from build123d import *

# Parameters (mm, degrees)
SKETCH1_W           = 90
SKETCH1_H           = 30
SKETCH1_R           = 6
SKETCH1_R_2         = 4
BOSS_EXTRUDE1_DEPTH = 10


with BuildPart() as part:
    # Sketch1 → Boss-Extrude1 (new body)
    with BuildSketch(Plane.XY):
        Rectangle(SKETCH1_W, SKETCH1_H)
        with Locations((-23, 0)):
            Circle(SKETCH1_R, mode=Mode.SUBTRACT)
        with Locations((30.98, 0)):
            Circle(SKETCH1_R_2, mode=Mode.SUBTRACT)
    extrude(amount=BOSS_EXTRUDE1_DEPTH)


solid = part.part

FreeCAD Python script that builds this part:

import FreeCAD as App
import Part
import Sketcher

V = App.Vector

doc = App.newDocument("Part")
body = doc.addObject("PartDesign::Body", "Body")

# Sketch on XY plane
sketch1 = doc.addObject("Sketcher::SketchObject", "Sketch")
body.addObject(sketch1)
sketch1.AttachmentSupport = (doc.XY_Plane, [""])
sketch1.MapMode = "FlatFace"
sketch1.addGeometry([
    Part.LineSegment(V(-45, 15, 0), V(-45, -15, 0)),  # 0
    Part.LineSegment(V(-45, -15, 0), V(45, -15, 0)),  # 1
    Part.LineSegment(V(45, -15, 0), V(45, 15, 0)),  # 2
    Part.LineSegment(V(45, 15, 0), V(-45, 15, 0)),  # 3
    Part.Circle(V(-23, 0, 0), V(0, 0, 1), 6),  # 4
    Part.Circle(V(31, 0, 0), V(0, 0, 1), 4),  # 5
], False)
sketch1.addConstraint([
    Sketcher.Constraint("Coincident", 0, 2, 1, 1),
    Sketcher.Constraint("Coincident", 1, 2, 2, 1),
    Sketcher.Constraint("Coincident", 2, 2, 3, 1),
    Sketcher.Constraint("Coincident", 3, 2, 0, 1),
    Sketcher.Constraint("Vertical", 0),
    Sketcher.Constraint("Horizontal", 1),
    Sketcher.Constraint("Vertical", 2),
    Sketcher.Constraint("Horizontal", 3),
    Sketcher.Constraint("Symmetric", 0, 2, 2, 2, -1, 1),
    Sketcher.Constraint("PointOnObject", 4, 3, -1),
    Sketcher.Constraint("PointOnObject", 5, 3, -1),
    Sketcher.Constraint("Diameter", 4, 12.0),
    Sketcher.Constraint("Diameter", 5, 8.0),
    Sketcher.Constraint("DistanceX", 1, 1, 1, 2, 90.0),
    Sketcher.Constraint("DistanceY", 0, 2, 0, 1, 30.0),
    Sketcher.Constraint("DistanceX", 4, 3, -1, 1, 23.0),
    Sketcher.Constraint("DistanceX", -1, 1, 5, 3, 30.98),
])
pad1 = doc.addObject("PartDesign::Pad", "Pad")
body.addObject(pad1)
pad1.Profile = sketch1
pad1.Length = 10

doc.recompute()
